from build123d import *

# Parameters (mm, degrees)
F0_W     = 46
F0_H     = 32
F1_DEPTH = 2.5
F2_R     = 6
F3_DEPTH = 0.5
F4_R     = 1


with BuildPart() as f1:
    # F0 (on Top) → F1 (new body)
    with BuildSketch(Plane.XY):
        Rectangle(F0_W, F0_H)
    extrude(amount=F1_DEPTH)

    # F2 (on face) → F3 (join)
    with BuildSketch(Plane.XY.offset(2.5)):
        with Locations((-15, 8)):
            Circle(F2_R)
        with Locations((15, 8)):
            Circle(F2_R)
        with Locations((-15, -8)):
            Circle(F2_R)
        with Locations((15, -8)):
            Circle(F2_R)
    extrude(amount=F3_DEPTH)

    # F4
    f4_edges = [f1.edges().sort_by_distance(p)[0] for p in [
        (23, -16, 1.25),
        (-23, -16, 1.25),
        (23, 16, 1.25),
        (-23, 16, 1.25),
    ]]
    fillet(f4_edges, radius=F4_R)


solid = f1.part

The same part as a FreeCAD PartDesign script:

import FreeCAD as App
import Part
import Sketcher


def edges_at(feature, points):
    """Names of the edges that pass closest to the given points."""
    edges = feature.Shape.Edges
    near = lambda p: min(range(len(edges)), key=lambda i: edges[i].distToShape(Part.Vertex(*p))[0])
    return sorted({f"Edge{near(p) + 1}" for p in points})

doc = App.newDocument("Part")
body = doc.addObject("PartDesign::Body", "Body")

# Sketch on XY plane
sketch1 = body.newObject("Sketcher::SketchObject", "Sketch")
sketch1.AttachmentSupport = (doc.getObject("XY_Plane"), [""])
sketch1.MapMode = "FlatFace"
sketch1.addGeometry([
    Part.LineSegment(App.Vector(-23, 16, 0), App.Vector(-23, -16, 0)),
    Part.LineSegment(App.Vector(-23, -16, 0), App.Vector(23, -16, 0)),
    Part.LineSegment(App.Vector(23, -16, 0), App.Vector(23, 16, 0)),
    Part.LineSegment(App.Vector(23, 16, 0), App.Vector(-23, 16, 0)),
], False)
sketch1.addConstraint([
    Sketcher.Constraint("Coincident", 0, 2, 1, 1),
    Sketcher.Constraint("Coincident", 1, 2, 2, 1),
    Sketcher.Constraint("Coincident", 2, 2, 3, 1),
    Sketcher.Constraint("Coincident", 3, 2, 0, 1),
    Sketcher.Constraint("Vertical", 0),
    Sketcher.Constraint("Horizontal", 1),
    Sketcher.Constraint("Vertical", 2),
    Sketcher.Constraint("Horizontal", 3),
    Sketcher.Constraint("Symmetric", 0, 2, 2, 2, -1, 1),
    Sketcher.Constraint("DistanceX", 1, 1, 1, 2, 46.0),
    Sketcher.Constraint("DistanceY", 0, 2, 0, 1, 32.0),
])
pad1 = body.newObject("PartDesign::Pad", "Pad")
pad1.Profile = sketch1
pad1.Length = 2.5

# Sketch on XY plane
sketch2 = body.newObject("Sketcher::SketchObject", "Sketch001")
sketch2.AttachmentSupport = (doc.getObject("XY_Plane"), [""])
sketch2.MapMode = "FlatFace"
sketch2.AttachmentOffset = App.Placement(App.Vector(0, 0, 2.5), App.Rotation())
sketch2.addGeometry([
    Part.Circle(App.Vector(-15, 8, 0), App.Vector(0, 0, 1), 6),
    Part.Circle(App.Vector(15, 8, 0), App.Vector(0, 0, 1), 6),
    Part.Circle(App.Vector(-15, -8, 0), App.Vector(0, 0, 1), 6),
    Part.Circle(App.Vector(15, -8, 0), App.Vector(0, 0, 1), 6),
], False)
sketch2.addConstraint([
    Sketcher.Constraint("Equal", 0, 1),
    Sketcher.Constraint("Equal", 1, 2),
    Sketcher.Constraint("Equal", 2, 3),
    Sketcher.Constraint("Symmetric", 1, 3, 2, 3, -1, 1),
    Sketcher.Constraint("Symmetric", 0, 3, 3, 3, -1, 1),
    Sketcher.Constraint("Symmetric", 0, 3, 1, 3, -2),
    Sketcher.Constraint("Diameter", 0, 12.0),
    Sketcher.Constraint("DistanceX", 0, 3, -1, 1, 15.0),
    Sketcher.Constraint("DistanceY", -1, 1, 0, 3, 8.0),
])
pad2 = body.newObject("PartDesign::Pad", "Pad001")
pad2.Profile = sketch2
pad2.Length = 0.5
doc.recompute()

fillet = body.newObject("PartDesign::Fillet", "Fillet")
fillet.Base = (pad2, edges_at(pad2, [
    (23, -16, 1.25),
    (-23, -16, 1.25),
    (23, 16, 1.25),
    (-23, 16, 1.25),
]))
fillet.Radius = 1

doc.recompute()
